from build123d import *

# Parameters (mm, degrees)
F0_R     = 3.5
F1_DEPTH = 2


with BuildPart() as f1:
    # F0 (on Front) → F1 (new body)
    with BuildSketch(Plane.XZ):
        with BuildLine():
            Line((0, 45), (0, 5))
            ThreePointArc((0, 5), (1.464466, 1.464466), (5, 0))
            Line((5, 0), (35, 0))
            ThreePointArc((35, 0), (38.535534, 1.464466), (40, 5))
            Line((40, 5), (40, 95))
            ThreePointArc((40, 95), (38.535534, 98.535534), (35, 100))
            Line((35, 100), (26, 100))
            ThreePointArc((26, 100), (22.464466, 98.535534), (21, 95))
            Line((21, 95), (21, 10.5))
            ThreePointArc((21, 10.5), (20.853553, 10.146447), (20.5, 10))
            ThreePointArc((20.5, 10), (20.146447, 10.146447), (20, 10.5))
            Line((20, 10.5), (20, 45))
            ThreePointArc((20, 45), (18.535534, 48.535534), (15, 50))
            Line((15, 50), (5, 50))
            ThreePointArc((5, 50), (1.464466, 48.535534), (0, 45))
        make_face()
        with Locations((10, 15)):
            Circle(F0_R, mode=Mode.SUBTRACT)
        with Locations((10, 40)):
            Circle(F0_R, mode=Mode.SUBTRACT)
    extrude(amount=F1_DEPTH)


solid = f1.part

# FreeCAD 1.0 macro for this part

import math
import FreeCAD as App
import Part
import Sketcher
Q = App.Units.Quantity

doc = App.newDocument("Part")
body = doc.addObject("PartDesign::Body", "Body")

# Sketch on XZ plane
sketch1 = body.newObject("Sketcher::SketchObject", "Sketch")
sketch1.AttachmentSupport = (doc.getObject("XZ_Plane"), [""])
sketch1.MapMode = "FlatFace"
sketch1.addGeometry([
    Part.LineSegment(App.Vector(0, 45, 0), App.Vector(0, 5, 0)),  # 0
    Part.ArcOfCircle(Part.Circle(App.Vector(5, 5, 0), App.Vector(0, 0, 1), 5), math.radians(179.999996), math.radians(270.000004)),  # 1
    Part.LineSegment(App.Vector(5, 0, 0), App.Vector(35, 0, 0)),  # 2
    Part.ArcOfCircle(Part.Circle(App.Vector(35, 5, 0), App.Vector(0, 0, 1), 5), math.radians(-90.000004), math.radians(0.000004)),  # 3
    Part.LineSegment(App.Vector(40, 5, 0), App.Vector(40, 95, 0)),  # 4
    Part.ArcOfCircle(Part.Circle(App.Vector(35, 95, 0), App.Vector(0, 0, 1), 5), math.radians(-0.000004), math.radians(90.000004)),  # 5
    Part.LineSegment(App.Vector(35, 100, 0), App.Vector(26, 100, 0)),  # 6
    Part.ArcOfCircle(Part.Circle(App.Vector(26, 95, 0), App.Vector(0, 0, 1), 5), math.radians(89.999996), math.radians(180.000004)),  # 7
    Part.LineSegment(App.Vector(21, 95, 0), App.Vector(21, 10.5, 0)),  # 8
    Part.ArcOfCircle(Part.Circle(App.Vector(20.499999, 10.500001, 0), App.Vector(0, 0, 1), 0.500001), math.radians(-89.999847), math.radians(-0.000153)),  # 9
    Part.ArcOfCircle(Part.Circle(App.Vector(20.500001, 10.500001, 0), App.Vector(0, 0, 1), 0.500001), math.radians(-179.999847), math.radians(-90.000153)),  # 10
    Part.LineSegment(App.Vector(20, 10.5, 0), App.Vector(20, 45, 0)),  # 11
    Part.ArcOfCircle(Part.Circle(App.Vector(15, 45, 0), App.Vector(0, 0, 1), 5), math.radians(-0.000004), math.radians(90.000004)),  # 12
    Part.LineSegment(App.Vector(15, 50, 0), App.Vector(5, 50, 0)),  # 13
    Part.ArcOfCircle(Part.Circle(App.Vector(5, 45, 0), App.Vector(0, 0, 1), 5), math.radians(89.999996), math.radians(180.000004)),  # 14
    Part.Circle(App.Vector(10, 15, 0), App.Vector(0, 0, 1), 3.5),  # 15
    Part.Circle(App.Vector(10, 40, 0), App.Vector(0, 0, 1), 3.5),  # 16
], False)
sketch1.addConstraint([
    Sketcher.Constraint("Tangent", 0, 2, 1, 1),
    Sketcher.Constraint("Tangent", 1, 2, 2, 1),
    Sketcher.Constraint("Tangent", 2, 2, 3, 1),
    Sketcher.Constraint("Tangent", 3, 2, 4, 1),
    Sketcher.Constraint("Tangent", 4, 2, 5, 1),
    Sketcher.Constraint("Tangent", 5, 2, 6, 1),
    Sketcher.Constraint("Tangent", 6, 2, 7, 1),
    Sketcher.Constraint("Tangent", 7, 2, 8, 1),
    Sketcher.Constraint("Coincident", 8, 2, 9, 2),
    Sketcher.Constraint("Coincident", 9, 1, 10, 2),
    Sketcher.Constraint("Coincident", 10, 1, 11, 1),
    Sketcher.Constraint("Tangent", 11, 2, 12, 1),
    Sketcher.Constraint("Tangent", 12, 2, 13, 1),
    Sketcher.Constraint("Tangent", 13, 2, 14, 1),
    Sketcher.Constraint("Tangent", 14, 2, 0, 1),
    Sketcher.Constraint("Vertical", 0),
    Sketcher.Constraint("Horizontal", 2),
    Sketcher.Constraint("Vertical", 4),
    Sketcher.Constraint("Horizontal", 6),
    Sketcher.Constraint("Vertical", 8),
    Sketcher.Constraint("Vertical", 11),
    Sketcher.Constraint("Horizontal", 13),
    Sketcher.Constraint("Coincident", 10, 3, 9, 3),
    Sketcher.Constraint("Equal", 1, 3),
    Sketcher.Constraint("Equal", 3, 5),
    Sketcher.Constraint("Equal", 5, 7),
    Sketcher.Constraint("Equal", 7, 12),
    Sketcher.Constraint("Equal", 12, 14),
    Sketcher.Constraint("Equal", 15, 16),
    Sketcher.Constraint("PointOnObject", 0, 2, -2),
    Sketcher.Constraint("PointOnObject", 1, 2, -1),
    Sketcher.Constraint("Horizontal", 10, 3, 8, 2),
    Sketcher.Constraint("Horizontal", 8, 2, 10, 1),
    Sketcher.Constraint("Vertical", 15, 3, 16, 3),
    Sketcher.Constraint("Vertical", 10, 3, 9, 1),
    Sketcher.Constraint("Diameter", 15, Q("7 mm")),
    Sketcher.Constraint("Radius", 1, Q("5 mm")),
    Sketcher.Constraint("Radius", 9, Q("0.500001 mm")),
    Sketcher.Constraint("DistanceX", 2, 1, 2, 2, Q("30 mm")),
    Sketcher.Constraint("DistanceX", 6, 2, 6, 1, Q("9 mm")),
    Sketcher.Constraint("DistanceY", 0, 2, 0, 1, Q("40 mm")),
    Sketcher.Constraint("DistanceY", 4, 1, 4, 2, Q("90 mm")),
    Sketcher.Constraint("DistanceY", 8, 2, 8, 1, Q("84.5 mm")),
    Sketcher.Constraint("DistanceX", -1, 1, 15, 3, Q("10 mm")),
    Sketcher.Constraint("DistanceY", -1, 1, 15, 3, Q("15 mm")),
    Sketcher.Constraint("DistanceY", -1, 1, 16, 3, Q("40 mm")),
])
pad1 = body.newObject("PartDesign::Pad", "Pad")
pad1.Profile = sketch1
pad1.Length = 2

doc.recompute()
